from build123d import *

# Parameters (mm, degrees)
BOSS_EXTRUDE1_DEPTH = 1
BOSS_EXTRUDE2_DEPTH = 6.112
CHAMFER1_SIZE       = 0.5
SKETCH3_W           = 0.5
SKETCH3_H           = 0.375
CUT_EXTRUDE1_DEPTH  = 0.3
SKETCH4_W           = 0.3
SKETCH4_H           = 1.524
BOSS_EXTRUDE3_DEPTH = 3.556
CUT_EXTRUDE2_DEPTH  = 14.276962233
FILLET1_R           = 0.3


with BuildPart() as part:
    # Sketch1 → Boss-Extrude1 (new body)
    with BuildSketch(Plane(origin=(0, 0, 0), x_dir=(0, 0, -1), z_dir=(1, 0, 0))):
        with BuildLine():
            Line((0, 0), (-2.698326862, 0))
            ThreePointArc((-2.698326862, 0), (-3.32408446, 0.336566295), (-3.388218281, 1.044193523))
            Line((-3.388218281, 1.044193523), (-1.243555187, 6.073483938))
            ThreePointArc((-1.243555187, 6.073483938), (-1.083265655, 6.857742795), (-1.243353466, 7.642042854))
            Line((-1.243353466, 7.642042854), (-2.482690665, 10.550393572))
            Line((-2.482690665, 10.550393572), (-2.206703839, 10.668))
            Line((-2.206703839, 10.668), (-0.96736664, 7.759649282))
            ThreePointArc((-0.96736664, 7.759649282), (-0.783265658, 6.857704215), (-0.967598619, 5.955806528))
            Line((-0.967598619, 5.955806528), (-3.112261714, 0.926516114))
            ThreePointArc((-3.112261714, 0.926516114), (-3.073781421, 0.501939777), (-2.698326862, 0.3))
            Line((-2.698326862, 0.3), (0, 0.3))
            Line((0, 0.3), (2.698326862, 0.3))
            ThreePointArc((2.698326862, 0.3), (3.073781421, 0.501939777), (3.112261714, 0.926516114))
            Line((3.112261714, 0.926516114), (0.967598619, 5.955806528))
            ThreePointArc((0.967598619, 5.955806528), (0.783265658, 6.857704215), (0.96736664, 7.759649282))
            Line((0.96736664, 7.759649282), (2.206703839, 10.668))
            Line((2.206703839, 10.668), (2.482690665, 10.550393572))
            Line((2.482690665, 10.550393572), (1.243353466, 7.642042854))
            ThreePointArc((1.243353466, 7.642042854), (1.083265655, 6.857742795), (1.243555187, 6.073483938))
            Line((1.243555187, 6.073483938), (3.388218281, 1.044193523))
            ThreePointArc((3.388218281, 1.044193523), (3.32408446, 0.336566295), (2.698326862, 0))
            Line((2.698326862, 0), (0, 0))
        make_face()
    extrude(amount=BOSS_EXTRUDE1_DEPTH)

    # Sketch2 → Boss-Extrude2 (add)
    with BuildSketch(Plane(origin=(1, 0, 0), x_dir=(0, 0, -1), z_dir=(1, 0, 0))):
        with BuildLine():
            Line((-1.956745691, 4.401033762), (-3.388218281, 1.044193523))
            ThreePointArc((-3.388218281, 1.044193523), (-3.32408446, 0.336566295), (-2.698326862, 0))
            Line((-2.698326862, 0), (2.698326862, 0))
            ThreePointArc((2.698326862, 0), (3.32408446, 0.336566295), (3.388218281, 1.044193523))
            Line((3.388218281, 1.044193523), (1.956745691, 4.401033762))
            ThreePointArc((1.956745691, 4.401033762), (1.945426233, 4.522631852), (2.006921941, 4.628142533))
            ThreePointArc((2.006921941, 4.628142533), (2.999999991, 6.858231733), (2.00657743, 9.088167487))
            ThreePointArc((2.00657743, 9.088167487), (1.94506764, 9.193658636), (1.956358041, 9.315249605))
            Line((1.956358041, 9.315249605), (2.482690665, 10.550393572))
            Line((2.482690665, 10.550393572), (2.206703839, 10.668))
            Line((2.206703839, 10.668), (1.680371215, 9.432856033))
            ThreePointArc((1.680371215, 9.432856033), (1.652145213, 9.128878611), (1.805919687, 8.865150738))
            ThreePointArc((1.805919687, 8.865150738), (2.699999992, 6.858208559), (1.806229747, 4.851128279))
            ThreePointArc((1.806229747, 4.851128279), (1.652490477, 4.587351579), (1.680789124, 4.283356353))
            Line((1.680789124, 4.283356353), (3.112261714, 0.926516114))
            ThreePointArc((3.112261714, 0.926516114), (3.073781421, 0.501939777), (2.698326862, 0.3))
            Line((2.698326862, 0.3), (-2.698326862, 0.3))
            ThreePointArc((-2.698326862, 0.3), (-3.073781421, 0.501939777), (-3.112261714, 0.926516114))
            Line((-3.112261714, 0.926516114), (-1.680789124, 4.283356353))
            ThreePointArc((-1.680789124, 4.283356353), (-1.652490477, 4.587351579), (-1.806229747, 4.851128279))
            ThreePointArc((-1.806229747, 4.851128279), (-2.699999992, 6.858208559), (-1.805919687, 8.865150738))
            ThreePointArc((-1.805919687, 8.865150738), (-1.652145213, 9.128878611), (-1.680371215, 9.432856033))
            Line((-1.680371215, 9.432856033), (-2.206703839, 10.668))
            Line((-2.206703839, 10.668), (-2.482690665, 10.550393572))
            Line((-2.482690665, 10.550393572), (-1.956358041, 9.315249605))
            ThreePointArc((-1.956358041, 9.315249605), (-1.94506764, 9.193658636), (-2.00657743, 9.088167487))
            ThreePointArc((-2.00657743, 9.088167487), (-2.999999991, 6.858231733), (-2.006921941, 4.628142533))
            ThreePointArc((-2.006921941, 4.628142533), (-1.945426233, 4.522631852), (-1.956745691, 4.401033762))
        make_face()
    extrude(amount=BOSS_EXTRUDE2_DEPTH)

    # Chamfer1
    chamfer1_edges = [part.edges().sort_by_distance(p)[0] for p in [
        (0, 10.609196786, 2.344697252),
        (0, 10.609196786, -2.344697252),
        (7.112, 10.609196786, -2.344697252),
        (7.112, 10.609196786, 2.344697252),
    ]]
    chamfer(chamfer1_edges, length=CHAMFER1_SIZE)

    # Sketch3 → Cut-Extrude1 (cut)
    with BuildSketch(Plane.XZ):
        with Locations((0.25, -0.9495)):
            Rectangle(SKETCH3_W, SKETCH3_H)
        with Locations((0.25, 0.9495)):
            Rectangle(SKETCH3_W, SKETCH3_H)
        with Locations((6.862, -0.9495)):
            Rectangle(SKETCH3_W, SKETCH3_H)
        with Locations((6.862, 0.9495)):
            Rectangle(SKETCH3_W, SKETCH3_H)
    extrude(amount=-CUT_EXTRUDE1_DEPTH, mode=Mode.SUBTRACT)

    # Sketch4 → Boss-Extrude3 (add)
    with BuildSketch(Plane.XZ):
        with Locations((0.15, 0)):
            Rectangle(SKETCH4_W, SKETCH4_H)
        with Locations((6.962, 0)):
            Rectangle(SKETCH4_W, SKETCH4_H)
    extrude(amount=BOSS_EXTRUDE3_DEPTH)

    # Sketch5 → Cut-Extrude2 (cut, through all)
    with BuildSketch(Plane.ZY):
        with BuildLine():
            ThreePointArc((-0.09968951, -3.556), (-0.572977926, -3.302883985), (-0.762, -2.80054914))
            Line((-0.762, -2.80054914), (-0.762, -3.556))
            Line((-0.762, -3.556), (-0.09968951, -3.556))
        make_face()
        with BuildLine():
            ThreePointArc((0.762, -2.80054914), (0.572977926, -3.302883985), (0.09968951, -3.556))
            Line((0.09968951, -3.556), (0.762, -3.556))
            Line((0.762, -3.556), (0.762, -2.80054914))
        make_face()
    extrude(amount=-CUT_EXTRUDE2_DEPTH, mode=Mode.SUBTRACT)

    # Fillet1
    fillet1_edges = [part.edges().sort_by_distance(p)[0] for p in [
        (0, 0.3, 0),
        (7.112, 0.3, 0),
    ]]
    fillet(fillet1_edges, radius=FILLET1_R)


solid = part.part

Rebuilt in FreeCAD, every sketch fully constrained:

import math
import FreeCAD as App
import Part
import Sketcher

V = App.Vector
Q = App.Units.Quantity


def edges_at(feature, points):
    """Names of the edges that pass closest to the given points."""
    edges = feature.Shape.Edges
    near = lambda p: min(range(len(edges)), key=lambda i: edges[i].distToShape(Part.Vertex(*p))[0])
    return sorted({f"Edge{near(p) + 1}" for p in points})


def add_polygon(sketch, points):
    """Adds a closed chain of lines whose ends are joined by coincident constraints."""
    first, n = sketch.GeometryCount, len(points)
    for a, b in zip(points, points[1:] + points[:1]):
        sketch.addGeometry(Part.LineSegment(App.Vector(*a, 0), App.Vector(*b, 0)), False)
    for i in range(n):
        sketch.addConstraint(Sketcher.Constraint("Coincident", first + i, 2, first + (i + 1) % n, 1))

doc = App.newDocument("Part")
body = doc.addObject("PartDesign::Body", "Body")

# Sketch on YZ plane
sketch1 = body.newObject("Sketcher::SketchObject", "Sketch")
sketch1.AttachmentSupport = (doc.getObject("YZ_Plane"), [""])
sketch1.MapMode = "FlatFace"
sketch1.addGeometry([
    Part.ArcOfCircle(Part.Circle(V(0.75, 2.698327, 0), V(0, 0, 1), 0.75), math.radians(66.904926), math.radians(180)),  # 0
    Part.LineSegment(V(0, 2.698327, 0), V(0, -2.698327, 0)),  # 1
    Part.ArcOfCircle(Part.Circle(V(0.75, -2.698327, 0), V(0, 0, 1), 0.75), math.radians(180), math.radians(293.095074)),  # 2
    Part.LineSegment(V(1.044194, -3.388218, 0), V(6.073484, -1.243555, 0)),  # 3
    Part.ArcOfCircle(Part.Circle(V(6.858, -3.083266, 0), V(0, 0, 1), 2), math.radians(66.919663), math.radians(113.095074)),  # 4
    Part.LineSegment(V(7.642043, -1.243353, 0), V(10.550394, -2.482691, 0)),  # 5
    Part.LineSegment(V(10.550394, -2.482691, 0), V(10.668, -2.206704, 0)),  # 6
    Part.LineSegment(V(10.668, -2.206704, 0), V(7.759649, -0.967367, 0)),  # 7
    Part.ArcOfCircle(Part.Circle(V(6.858, -3.083266, 0), V(0, 0, 1), 2.3), math.radians(66.919663), math.radians(113.095074)),  # 8
    Part.LineSegment(V(5.955807, -0.967599, 0), V(0.926516, -3.112262, 0)),  # 9
    Part.ArcOfCircle(Part.Circle(V(0.75, -2.698327, 0), V(0, 0, 1), 0.45), math.radians(180), math.radians(293.095074)),  # 10
    Part.LineSegment(V(0.3, -2.698327, 0), V(0.3, 2.698327, 0)),  # 11
    Part.ArcOfCircle(Part.Circle(V(0.75, 2.698327, 0), V(0, 0, 1), 0.45), math.radians(66.904926), math.radians(180)),  # 12
    Part.LineSegment(V(0.926516, 3.112262, 0), V(5.955807, 0.967599, 0)),  # 13
    Part.ArcOfCircle(Part.Circle(V(6.858, 3.083266, 0), V(0, 0, 1), 2.3), math.radians(-113.095074), math.radians(-66.919663)),  # 14
    Part.LineSegment(V(7.759649, 0.967367, 0), V(10.668, 2.206704, 0)),  # 15
    Part.LineSegment(V(10.668, 2.206704, 0), V(10.550394, 2.482691, 0)),  # 16
    Part.LineSegment(V(10.550394, 2.482691, 0), V(7.642043, 1.243353, 0)),  # 17
    Part.ArcOfCircle(Part.Circle(V(6.858, 3.083266, 0), V(0, 0, 1), 2), math.radians(-113.095074), math.radians(-66.919663)),  # 18
    Part.LineSegment(V(6.073484, 1.243555, 0), V(1.044194, 3.388218, 0)),  # 19
], False)
sketch1.addConstraint([
    Sketcher.Constraint("Tangent", 0, 2, 1, 1),
    Sketcher.Constraint("Tangent", 1, 2, 2, 1),
    Sketcher.Constraint("Tangent", 2, 2, 3, 1),
    Sketcher.Constraint("Tangent", 3, 2, 4, 2),
    Sketcher.Constraint("Tangent", 4, 1, 5, 1),
    Sketcher.Constraint("Coincident", 5, 2, 6, 1),
    Sketcher.Constraint("Coincident", 6, 2, 7, 1),
    Sketcher.Constraint("Tangent", 7, 2, 8, 1),
    Sketcher.Constraint("Tangent", 8, 2, 9, 1),
    Sketcher.Constraint("Tangent", 9, 2, 10, 2),
    Sketcher.Constraint("Tangent", 10, 1, 11, 1),
    Sketcher.Constraint("Tangent", 11, 2, 12, 2),
    Sketcher.Constraint("Tangent", 12, 1, 13, 1),
    Sketcher.Constraint("Tangent", 13, 2, 14, 1),
    Sketcher.Constraint("Tangent", 14, 2, 15, 1),
    Sketcher.Constraint("Coincident", 15, 2, 16, 1),
    Sketcher.Constraint("Coincident", 16, 2, 17, 1),
    Sketcher.Constraint("Tangent", 17, 2, 18, 2),
    Sketcher.Constraint("Tangent", 18, 1, 19, 1),
    Sketcher.Constraint("Tangent", 19, 2, 0, 1),
    Sketcher.Constraint("Vertical", 1),
    Sketcher.Constraint("Vertical", 11),
    Sketcher.Constraint("Coincident", 8, 3, 4, 3),
    Sketcher.Constraint("Coincident", 10, 3, 2, 3),
    Sketcher.Constraint("Coincident", 12, 3, 0, 3),
    Sketcher.Constraint("Coincident", 18, 3, 14, 3),
    Sketcher.Constraint("Equal", 0, 2),
    Sketcher.Constraint("Equal", 8, 14),
    Sketcher.Constraint("Equal", 4, 18),
    Sketcher.Constraint("Symmetric", 0, 2, 1, 2, -1, 1),
    Sketcher.Constraint("Symmetric", 4, 3, 14, 3, -1),
    Sketcher.Constraint("Symmetric", 6, 2, 15, 2, -1),
    Sketcher.Constraint("Symmetric", 5, 2, 16, 2, -1),
    Sketcher.Constraint("Perpendicular", 5, 6),
    Sketcher.Constraint("Perpendicular", 6, 7),
    Sketcher.Constraint("Parallel", 3, 9),
    Sketcher.Constraint("Radius", 4, Q("2 mm")),
    Sketcher.Constraint("Radius", 8, Q("2.3 mm")),
    Sketcher.Constraint("Radius", 0, Q("0.75 mm")),
    Sketcher.Constraint("DistanceX", 4, 3, 6, 2, Q("3.81 mm")),
    Sketcher.Constraint("DistanceX", -1, 1, 4, 3, Q("6.858 mm")),
    Sketcher.Constraint("Distance", 5, Q("3.161402 mm")),
    Sketcher.Constraint("DistanceY", 8, 2, -1, 1, Q("0.967599 mm")),
    Sketcher.Constraint("DistanceY", 3, 2, 4, 1, Q("0.000202 mm")),
])
pad1 = body.newObject("PartDesign::Pad", "Pad")
pad1.Profile = sketch1
pad1.Length = 1

# Sketch on YZ plane
sketch2 = body.newObject("Sketcher::SketchObject", "Sketch001")
sketch2.AttachmentSupport = (doc.getObject("YZ_Plane"), [""])
sketch2.MapMode = "FlatFace"
sketch2.AttachmentOffset = App.Placement(V(0, 0, 1), App.Rotation())
sketch2.addGeometry([
    Part.LineSegment(V(4.401034, 1.956746, 0), V(1.044194, 3.388218, 0)),  # 0
    Part.ArcOfCircle(Part.Circle(V(0.75, 2.698327, 0), V(0, 0, 1), 0.75), math.radians(66.904926), math.radians(180)),  # 1
    Part.LineSegment(V(0, 2.698327, 0), V(0, -2.698327, 0)),  # 2
    Part.ArcOfCircle(Part.Circle(V(0.75, -2.698327, 0), V(0, 0, 1), 0.75), math.radians(180), math.radians(293.095074)),  # 3
    Part.LineSegment(V(1.044194, -3.388218, 0), V(4.401034, -1.956746, 0)),  # 4
    Part.ArcOfCircle(Part.Circle(V(4.479485, -2.140717, 0), V(0, 0, 1), 0.2), math.radians(41.987926), math.radians(113.095073)),  # 5
    Part.ArcOfCircle(Part.Circle(V(6.858, 0, 0), V(0, 0, 1), 3), math.radians(-138.012075), math.radians(-41.979074)),  # 6
    Part.ArcOfCircle(Part.Circle(V(9.236845, -2.140349, 0), V(0, 0, 1), 0.2), math.radians(66.919663), math.radians(138.020926)),  # 7
    Part.LineSegment(V(9.31525, -1.956358, 0), V(10.550394, -2.482691, 0)),  # 8
    Part.LineSegment(V(10.550394, -2.482691, 0), V(10.668, -2.206704, 0)),  # 9
    Part.LineSegment(V(10.668, -2.206704, 0), V(9.432856, -1.680371, 0)),  # 10
    Part.ArcOfCircle(Part.Circle(V(9.236845, -2.140349, 0), V(0, 0, 1), 0.5), math.radians(66.919663), math.radians(138.020926)),  # 11
    Part.ArcOfCircle(Part.Circle(V(6.858, 0, 0), V(0, 0, 1), 2.7), math.radians(-138.012075), math.radians(-41.979074)),  # 12
    Part.ArcOfCircle(Part.Circle(V(4.479485, -2.140717, 0), V(0, 0, 1), 0.5), math.radians(41.987925), math.radians(113.095074)),  # 13
    Part.LineSegment(V(4.283356, -1.680789, 0), V(0.926516, -3.112262, 0)),  # 14
    Part.ArcOfCircle(Part.Circle(V(0.75, -2.698327, 0), V(0, 0, 1), 0.45), math.radians(180), math.radians(293.095074)),  # 15
    Part.LineSegment(V(0.3, -2.698327, 0), V(0.3, 2.698327, 0)),  # 16
    Part.ArcOfCircle(Part.Circle(V(0.75, 2.698327, 0), V(0, 0, 1), 0.45), math.radians(66.904926), math.radians(180)),  # 17
    Part.LineSegment(V(0.926516, 3.112262, 0), V(4.283356, 1.680789, 0)),  # 18
    Part.ArcOfCircle(Part.Circle(V(4.479485, 2.140717, 0), V(0, 0, 1), 0.5), math.radians(-113.095074), math.radians(-41.987925)),  # 19
    Part.ArcOfCircle(Part.Circle(V(6.858, 0, 0), V(0, 0, 1), 2.7), math.radians(41.979074), math.radians(138.012075)),  # 20
    Part.ArcOfCircle(Part.Circle(V(9.236845, 2.140349, 0), V(0, 0, 1), 0.5), math.radians(-138.020926), math.radians(-66.919663)),  # 21
    Part.LineSegment(V(9.432856, 1.680371, 0), V(10.668, 2.206704, 0)),  # 22
    Part.LineSegment(V(10.668, 2.206704, 0), V(10.550394, 2.482691, 0)),  # 23
    Part.LineSegment(V(10.550394, 2.482691, 0), V(9.31525, 1.956358, 0)),  # 24
    Part.ArcOfCircle(Part.Circle(V(9.236845, 2.140349, 0), V(0, 0, 1), 0.2), math.radians(-138.020926), math.radians(-66.919663)),  # 25
    Part.ArcOfCircle(Part.Circle(V(6.858, 0, 0), V(0, 0, 1), 3), math.radians(41.979074), math.radians(138.012075)),  # 26
    Part.ArcOfCircle(Part.Circle(V(4.479485, 2.140717, 0), V(0, 0, 1), 0.2), math.radians(-113.095073), math.radians(-41.987926)),  # 27
], False)
sketch2.addConstraint([
    Sketcher.Constraint("Tangent", 0, 2, 1, 1),
    Sketcher.Constraint("Tangent", 1, 2, 2, 1),
    Sketcher.Constraint("Tangent", 2, 2, 3, 1),
    Sketcher.Constraint("Tangent", 3, 2, 4, 1),
    Sketcher.Constraint("Tangent", 4, 2, 5, 2),
    Sketcher.Constraint("Tangent", 5, 1, 6, 1),
    Sketcher.Constraint("Tangent", 6, 2, 7, 2),
    Sketcher.Constraint("Tangent", 7, 1, 8, 1),
    Sketcher.Constraint("Coincident", 8, 2, 9, 1),
    Sketcher.Constraint("Coincident", 9, 2, 10, 1),
    Sketcher.Constraint("Tangent", 10, 2, 11, 1),
    Sketcher.Constraint("Tangent", 11, 2, 12, 2),
    Sketcher.Constraint("Tangent", 12, 1, 13, 1),
    Sketcher.Constraint("Tangent", 13, 2, 14, 1),
    Sketcher.Constraint("Tangent", 14, 2, 15, 2),
    Sketcher.Constraint("Tangent", 15, 1, 16, 1),
    Sketcher.Constraint("Tangent", 16, 2, 17, 2),
    Sketcher.Constraint("Tangent", 17, 1, 18, 1),
    Sketcher.Constraint("Tangent", 18, 2, 19, 1),
    Sketcher.Constraint("Tangent", 19, 2, 20, 2),
    Sketcher.Constraint("Tangent", 20, 1, 21, 1),
    Sketcher.Constraint("Tangent", 21, 2, 22, 1),
    Sketcher.Constraint("Coincident", 22, 2, 23, 1),
    Sketcher.Constraint("Coincident", 23, 2, 24, 1),
    Sketcher.Constraint("Tangent", 24, 2, 25, 2),
    Sketcher.Constraint("Tangent", 25, 1, 26, 1),
    Sketcher.Constraint("Tangent", 26, 2, 27, 2),
    Sketcher.Constraint("Tangent", 27, 1, 0, 1),
    Sketcher.Constraint("Vertical", 2),
    Sketcher.Constraint("Vertical", 16),
    Sketcher.Constraint("Coincident", 11, 3, 7, 3),
    Sketcher.Constraint("Coincident", 12, 3, 6, 3),
    Sketcher.Constraint("Coincident", 13, 3, 5, 3),
    Sketcher.Constraint("Coincident", 15, 3, 3, 3),
    Sketcher.Constraint("Coincident", 17, 3, 1, 3),
    Sketcher.Constraint("Coincident", 20, 3, 6, 3),
    Sketcher.Constraint("Coincident", 25, 3, 21, 3),
    Sketcher.Constraint("Coincident", 26, 3, 6, 3),
    Sketcher.Constraint("Coincident", 27, 3, 19, 3),
    Sketcher.Constraint("Equal", 1, 3),
    Sketcher.Constraint("Equal", 5, 7),
    Sketcher.Constraint("Equal", 13, 19),
    Sketcher.Constraint("Equal", 12, 20),
    Sketcher.Constraint("Equal", 19, 21),
    Sketcher.Constraint("Equal", 7, 25),
    Sketcher.Constraint("Symmetric", 1, 2, 2, 2, -1, 1),
    Sketcher.Constraint("Symmetric", 5, 3, 19, 3, -1),
    Sketcher.Constraint("Symmetric", 10, 2, 21, 2, -1),
    Sketcher.Constraint("Symmetric", 8, 2, 23, 2, -1),
    Sketcher.Constraint("Perpendicular", 8, 9),
    Sketcher.Constraint("Perpendicular", 9, 10),
    Sketcher.Constraint("Parallel", 4, 14),
    Sketcher.Constraint("Perpendicular", 22, 23),
    Sketcher.Constraint("Radius", 6, Q("3 mm")),
    Sketcher.Constraint("Radius", 5, Q("0.2 mm")),
    Sketcher.Constraint("Radius", 11, Q("0.5 mm")),
    Sketcher.Constraint("Radius", 1, Q("0.75 mm")),
    Sketcher.Constraint("DistanceX", -1, 1, 6, 3, Q("6.858 mm")),
    Sketcher.Constraint("DistanceX", -1, 1, 9, 2, Q("10.668 mm")),
    Sketcher.Constraint("DistanceY", 7, 3, 21, 3, Q("4.280699 mm")),
    Sketcher.Constraint("DistanceY", 27, 3, 0, 2, Q("1.247502 mm")),
    Sketcher.Constraint("DistanceX", 11, 2, 7, 1, Q("0.450099 mm")),
    Sketcher.Constraint("DistanceY", 2, 2, 2, 1, Q("5.396654 mm")),
])
pad2 = body.newObject("PartDesign::Pad", "Pad001")
pad2.Profile = sketch2
pad2.Length = 6.112
doc.recompute()

chamfer = body.newObject("PartDesign::Chamfer", "Chamfer")
chamfer.Base = (pad2, edges_at(pad2, [
    (0, 10.609, 2.345),
    (0, 10.609, -2.345),
    (7.112, 10.609, -2.345),
    (7.112, 10.609, 2.345),
]))
chamfer.Size = 0.5

# Sketch on XZ plane
sketch3 = body.newObject("Sketcher::SketchObject", "Sketch002")
sketch3.AttachmentSupport = (doc.getObject("XZ_Plane"), [""])
sketch3.MapMode = "FlatFace"
add_polygon(sketch3, [(0, -0.762), (0, -1.137), (0.5, -1.137), (0.5, -0.762)])  # lines 0-3
add_polygon(sketch3, [(0, 1.137), (0, 0.762), (0.5, 0.762), (0.5, 1.137)])  # lines 4-7
add_polygon(sketch3, [(6.612, -0.762), (6.612, -1.137), (7.112, -1.137), (7.112, -0.762)])  # lines 8-11
add_polygon(sketch3, [(6.612, 1.137), (6.612, 0.762), (7.112, 0.762), (7.112, 1.137)])  # lines 12-15
sketch3.addConstraint([
    Sketcher.Constraint("Vertical", 0),
    Sketcher.Constraint("Horizontal", 1),
    Sketcher.Constraint("Vertical", 2),
    Sketcher.Constraint("Horizontal", 3),
    Sketcher.Constraint("Vertical", 4),
    Sketcher.Constraint("Horizontal", 5),
    Sketcher.Constraint("Vertical", 6),
    Sketcher.Constraint("Horizontal", 7),
    Sketcher.Constraint("Vertical", 8),
    Sketcher.Constraint("Horizontal", 9),
    Sketcher.Constraint("Vertical", 10),
    Sketcher.Constraint("Horizontal", 11),
    Sketcher.Constraint("Vertical", 12),
    Sketcher.Constraint("Horizontal", 13),
    Sketcher.Constraint("Vertical", 14),
    Sketcher.Constraint("Horizontal", 15),
    Sketcher.Constraint("Symmetric", 3, 2, 4, 2, -1, 1),
    Sketcher.Constraint("Symmetric", 1, 2, 6, 2, -1),
    Sketcher.Constraint("Symmetric", 11, 2, 12, 2, -1),
    Sketcher.Constraint("Symmetric", 9, 2, 14, 2, -1),
    Sketcher.Constraint("PointOnObject", 0, 2, -2),
    Sketcher.Constraint("Horizontal", 1, 2, 8, 2),
    Sketcher.Constraint("Horizontal", 3, 2, 10, 2),
    Sketcher.Constraint("Equal", 7, 9),
    Sketcher.Constraint("DistanceX", 1, 1, 1, 2, Q("0.5 mm")),
    Sketcher.Constraint("DistanceY", 0, 2, 0, 1, Q("0.375 mm")),
    Sketcher.Constraint("DistanceY", 0, 2, -1, 1, Q("1.137 mm")),
    Sketcher.Constraint("DistanceX", -1, 1, 8, 2, Q("6.612 mm")),
])
pocket1 = body.newObject("PartDesign::Pocket", "Pocket")
pocket1.Profile = sketch3
pocket1.Length = 0.3

# Sketch on XZ plane
sketch4 = body.newObject("Sketcher::SketchObject", "Sketch003")
sketch4.AttachmentSupport = (doc.getObject("XZ_Plane"), [""])
sketch4.MapMode = "FlatFace"
add_polygon(sketch4, [(0, 0.762), (0, -0.762), (0.3, -0.762), (0.3, 0.762)])  # lines 0-3
add_polygon(sketch4, [(6.812, 0.762), (6.812, -0.762), (7.112, -0.762), (7.112, 0.762)])  # lines 4-7
sketch4.addConstraint([
    Sketcher.Constraint("Vertical", 0),
    Sketcher.Constraint("Horizontal", 1),
    Sketcher.Constraint("Vertical", 2),
    Sketcher.Constraint("Horizontal", 3),
    Sketcher.Constraint("Vertical", 4),
    Sketcher.Constraint("Horizontal", 5),
    Sketcher.Constraint("Vertical", 6),
    Sketcher.Constraint("Horizontal", 7),
    Sketcher.Constraint("Symmetric", 0, 2, 3, 2, -1, 1),
    Sketcher.Constraint("Horizontal", 1, 2, 4, 2),
    Sketcher.Constraint("Horizontal", 3, 2, 6, 2),
    Sketcher.Constraint("Equal", 3, 5),
    Sketcher.Constraint("DistanceX", 1, 1, 1, 2, Q("0.3 mm")),
    Sketcher.Constraint("DistanceY", 0, 2, 0, 1, Q("1.524 mm")),
    Sketcher.Constraint("DistanceX", -1, 1, 4, 2, Q("6.812 mm")),
])
pad3 = body.newObject("PartDesign::Pad", "Pad002")
pad3.Profile = sketch4
pad3.Length = 3.556

# Sketch on YZ plane
sketch5 = body.newObject("Sketcher::SketchObject", "Sketch004")
sketch5.AttachmentSupport = (doc.getObject("YZ_Plane"), [""])
sketch5.MapMode = "FlatFace"
sketch5.addGeometry([
    Part.ArcOfCircle(Part.Circle(V(-2.800549, 0, 0), V(0, 0, 1), 0.762), math.radians(-172.482666), math.radians(-90)),  # 0
    Part.LineSegment(V(-2.800549, -0.762, 0), V(-3.556, -0.762, 0)),  # 1
    Part.LineSegment(V(-3.556, -0.762, 0), V(-3.556, -0.09969, 0)),  # 2
    Part.ArcOfCircle(Part.Circle(V(-2.800549, 0, 0), V(0, 0, 1), 0.762), math.radians(90), math.radians(172.482666)),  # 3
    Part.LineSegment(V(-3.556, 0.09969, 0), V(-3.556, 0.762, 0)),  # 4
    Part.LineSegment(V(-3.556, 0.762, 0), V(-2.800549, 0.762, 0)),  # 5
], False)
sketch5.addConstraint([
    Sketcher.Constraint("Tangent", 0, 2, 1, 1),
    Sketcher.Constraint("Coincident", 1, 2, 2, 1),
    Sketcher.Constraint("Coincident", 2, 2, 0, 1),
    Sketcher.Constraint("Coincident", 3, 2, 4, 1),
    Sketcher.Constraint("Coincident", 4, 2, 5, 1),
    Sketcher.Constraint("Tangent", 5, 2, 3, 1),
    Sketcher.Constraint("Horizontal", 1),
    Sketcher.Constraint("Vertical", 2),
    Sketcher.Constraint("Vertical", 4),
    Sketcher.Constraint("Horizontal", 5),
    Sketcher.Constraint("Coincident", 3, 3, 0, 3),
    Sketcher.Constraint("Equal", 0, 3),
    Sketcher.Constraint("Symmetric", 2, 2, 3, 2, -1),
    Sketcher.Constraint("Radius", 0, Q("0.762 mm")),
    Sketcher.Constraint("DistanceX", 1, 2, -1, 1, Q("3.556 mm")),
    Sketcher.Constraint("DistanceX", 1, 2, 1, 1, Q("0.755451 mm")),
])
pocket2 = body.newObject("PartDesign::Pocket", "Pocket001")
pocket2.Profile = sketch5
pocket2.Type = "ThroughAll"
pocket2.Reversed = True
doc.recompute()

fillet = body.newObject("PartDesign::Fillet", "Fillet")
fillet.Base = (pocket2, edges_at(pocket2, [(0, 0.3, 0), (7.112, 0.3, 0)]))
fillet.Radius = 0.3

doc.recompute()
